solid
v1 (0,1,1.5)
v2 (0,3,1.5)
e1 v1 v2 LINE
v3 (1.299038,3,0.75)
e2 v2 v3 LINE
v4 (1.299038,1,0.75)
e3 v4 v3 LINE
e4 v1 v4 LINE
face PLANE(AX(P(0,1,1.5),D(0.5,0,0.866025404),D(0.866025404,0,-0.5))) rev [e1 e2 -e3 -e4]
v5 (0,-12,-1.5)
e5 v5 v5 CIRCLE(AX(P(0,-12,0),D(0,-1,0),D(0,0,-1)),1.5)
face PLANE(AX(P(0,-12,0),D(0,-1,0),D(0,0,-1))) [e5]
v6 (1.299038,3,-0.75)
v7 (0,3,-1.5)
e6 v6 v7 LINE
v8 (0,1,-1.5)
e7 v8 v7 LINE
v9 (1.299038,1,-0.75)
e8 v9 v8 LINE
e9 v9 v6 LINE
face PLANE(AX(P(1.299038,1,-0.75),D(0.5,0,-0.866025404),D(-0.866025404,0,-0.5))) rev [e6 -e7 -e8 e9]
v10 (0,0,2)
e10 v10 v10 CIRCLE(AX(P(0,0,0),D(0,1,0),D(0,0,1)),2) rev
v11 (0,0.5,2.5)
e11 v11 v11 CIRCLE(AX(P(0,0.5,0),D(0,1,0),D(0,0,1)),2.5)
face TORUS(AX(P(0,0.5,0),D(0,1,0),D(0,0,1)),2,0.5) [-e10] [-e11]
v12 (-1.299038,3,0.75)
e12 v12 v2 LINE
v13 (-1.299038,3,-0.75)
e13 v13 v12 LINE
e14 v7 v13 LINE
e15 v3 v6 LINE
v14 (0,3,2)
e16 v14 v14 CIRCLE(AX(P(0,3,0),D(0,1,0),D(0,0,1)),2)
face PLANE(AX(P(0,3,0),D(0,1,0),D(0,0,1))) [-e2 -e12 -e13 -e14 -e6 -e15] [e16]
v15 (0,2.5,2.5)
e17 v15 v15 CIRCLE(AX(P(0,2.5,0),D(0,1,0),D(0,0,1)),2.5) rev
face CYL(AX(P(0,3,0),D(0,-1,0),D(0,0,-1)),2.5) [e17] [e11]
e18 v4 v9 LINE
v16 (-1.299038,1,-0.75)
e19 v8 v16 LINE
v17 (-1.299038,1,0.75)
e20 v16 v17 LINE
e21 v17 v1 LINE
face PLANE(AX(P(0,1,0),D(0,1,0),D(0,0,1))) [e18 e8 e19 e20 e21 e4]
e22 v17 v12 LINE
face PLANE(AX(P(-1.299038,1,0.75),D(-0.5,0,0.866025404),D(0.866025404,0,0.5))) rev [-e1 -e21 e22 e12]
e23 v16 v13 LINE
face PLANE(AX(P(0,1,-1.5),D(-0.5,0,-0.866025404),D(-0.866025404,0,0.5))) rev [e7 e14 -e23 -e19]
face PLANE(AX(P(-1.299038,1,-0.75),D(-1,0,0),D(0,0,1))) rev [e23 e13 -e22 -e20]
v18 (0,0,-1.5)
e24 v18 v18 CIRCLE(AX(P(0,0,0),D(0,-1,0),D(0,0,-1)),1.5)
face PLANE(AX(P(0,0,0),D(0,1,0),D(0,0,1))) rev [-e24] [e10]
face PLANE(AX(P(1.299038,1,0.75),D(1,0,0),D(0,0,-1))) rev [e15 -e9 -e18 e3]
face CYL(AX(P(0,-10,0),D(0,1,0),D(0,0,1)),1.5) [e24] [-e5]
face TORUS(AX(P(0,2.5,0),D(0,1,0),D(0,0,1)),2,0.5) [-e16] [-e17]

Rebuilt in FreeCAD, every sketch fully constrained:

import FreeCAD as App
import Part
import Sketcher
Q = App.Units.Quantity


def edges_at(feature, points):
    """Names of the edges that pass closest to the given points."""
    edges = feature.Shape.Edges
    near = lambda p: min(range(len(edges)), key=lambda i: edges[i].distToShape(Part.Vertex(*p))[0])
    return sorted({f"Edge{near(p) + 1}" for p in points})

doc = App.newDocument("Part")
body = doc.addObject("PartDesign::Body", "Body")

sketch1 = body.newObject("Sketcher::SketchObject", "Sketch")
sketch1.AttachmentSupport = (doc.getObject("XZ_Plane"), [""])
sketch1.MapMode = "FlatFace"
sketch1.addGeometry(Part.Circle(App.Vector(0, 0, 0), App.Vector(0, 0, 1), 2.5), False)
sketch1.addConstraint(Sketcher.Constraint("Coincident", 0, 3, -1, 1))
sketch1.addConstraint(Sketcher.Constraint("Diameter", 0, Q("5 mm")))
pad1 = body.newObject("PartDesign::Pad", "Pad")
pad1.Profile = sketch1
pad1.Length = 3
pad1.Reversed = True

sketch2 = body.newObject("Sketcher::SketchObject", "Sketch001")
sketch2.AttachmentSupport = (doc.getObject("XZ_Plane"), [""])
sketch2.MapMode = "FlatFace"
sketch2.AttachmentOffset = App.Placement(App.Vector(0, 0, -3), App.Rotation())
sketch2.addGeometry(Part.LineSegment(App.Vector(0, -1.5, 0), App.Vector(-1.299038, -0.75, 0)), False)
sketch2.addGeometry(Part.LineSegment(App.Vector(-1.299038, -0.75, 0), App.Vector(-1.299038, 0.75, 0)), False)
sketch2.addGeometry(Part.LineSegment(App.Vector(-1.299038, 0.75, 0), App.Vector(0, 1.5, 0)), False)
sketch2.addGeometry(Part.LineSegment(App.Vector(0, 1.5, 0), App.Vector(1.299038, 0.75, 0)), False)
sketch2.addGeometry(Part.LineSegment(App.Vector(1.299038, 0.75, 0), App.Vector(1.299038, -0.75, 0)), False)
sketch2.addGeometry(Part.LineSegment(App.Vector(1.299038, -0.75, 0), App.Vector(0, -1.5, 0)), False)
sketch2.addConstraint(Sketcher.Constraint("Coincident", 0, 2, 1, 1))
sketch2.addConstraint(Sketcher.Constraint("Coincident", 1, 2, 2, 1))
sketch2.addConstraint(Sketcher.Constraint("Coincident", 2, 2, 3, 1))
sketch2.addConstraint(Sketcher.Constraint("Coincident", 3, 2, 4, 1))
sketch2.addConstraint(Sketcher.Constraint("Coincident", 4, 2, 5, 1))
sketch2.addConstraint(Sketcher.Constraint("Coincident", 5, 2, 0, 1))
sketch2.addConstraint(Sketcher.Constraint("Vertical", 1))
sketch2.addConstraint(Sketcher.Constraint("Vertical", 4))
sketch2.addConstraint(Sketcher.Constraint("Symmetric", 0, 2, 3, 2, -1, 1))
sketch2.addConstraint(Sketcher.Constraint("Symmetric", 2, 2, 5, 2, -1, 1))
sketch2.addConstraint(Sketcher.Constraint("PointOnObject", 2, 2, -2))
sketch2.addConstraint(Sketcher.Constraint("Parallel", 2, 5))
sketch2.addConstraint(Sketcher.Constraint("Horizontal", 1, 2, 3, 2))
sketch2.addConstraint(Sketcher.Constraint("Angle", 0, Q("150 deg")))
sketch2.addConstraint(Sketcher.Constraint("DistanceY", 1, 1, 1, 2, Q("1.5 mm")))
sketch2.addConstraint(Sketcher.Constraint("DistanceY", 5, 2, 2, 2, Q("3 mm")))
pocket1 = body.newObject("PartDesign::Pocket", "Pocket")
pocket1.Profile = sketch2
pocket1.Length = 2
pocket1.Reversed = True

sketch3 = body.newObject("Sketcher::SketchObject", "Sketch002")
sketch3.AttachmentSupport = (doc.getObject("XZ_Plane"), [""])
sketch3.MapMode = "FlatFace"
sketch3.addGeometry(Part.Circle(App.Vector(0, 0, 0), App.Vector(0, 0, 1), 1.5), False)
sketch3.addConstraint(Sketcher.Constraint("Coincident", 0, 3, -1, 1))
sketch3.addConstraint(Sketcher.Constraint("Diameter", 0, Q("3 mm")))
pad2 = body.newObject("PartDesign::Pad", "Pad001")
pad2.Profile = sketch3
pad2.Length = 10
doc.recompute()

fillet = body.newObject("PartDesign::Fillet", "Fillet")
fillet.Base = (pad2, edges_at(pad2, [(0, 0, -2.5), (0, 3, -2.5)]))
fillet.Radius = 0.5

sketch4 = body.newObject("Sketcher::SketchObject", "Sketch003")
sketch4.AttachmentSupport = (doc.getObject("XZ_Plane"), [""])
sketch4.MapMode = "FlatFace"
sketch4.AttachmentOffset = App.Placement(App.Vector(0, 0, 10), App.Rotation())
sketch4.addGeometry(Part.Circle(App.Vector(0, 0, 0), App.Vector(0, 0, 1), 1.5), False)
sketch4.addConstraint(Sketcher.Constraint("Coincident", 0, 3, -1, 1))
sketch4.addConstraint(Sketcher.Constraint("Diameter", 0, Q("3 mm")))
pad3 = body.newObject("PartDesign::Pad", "Pad002")
pad3.Profile = sketch4
pad3.Length = 2

doc.recompute()
